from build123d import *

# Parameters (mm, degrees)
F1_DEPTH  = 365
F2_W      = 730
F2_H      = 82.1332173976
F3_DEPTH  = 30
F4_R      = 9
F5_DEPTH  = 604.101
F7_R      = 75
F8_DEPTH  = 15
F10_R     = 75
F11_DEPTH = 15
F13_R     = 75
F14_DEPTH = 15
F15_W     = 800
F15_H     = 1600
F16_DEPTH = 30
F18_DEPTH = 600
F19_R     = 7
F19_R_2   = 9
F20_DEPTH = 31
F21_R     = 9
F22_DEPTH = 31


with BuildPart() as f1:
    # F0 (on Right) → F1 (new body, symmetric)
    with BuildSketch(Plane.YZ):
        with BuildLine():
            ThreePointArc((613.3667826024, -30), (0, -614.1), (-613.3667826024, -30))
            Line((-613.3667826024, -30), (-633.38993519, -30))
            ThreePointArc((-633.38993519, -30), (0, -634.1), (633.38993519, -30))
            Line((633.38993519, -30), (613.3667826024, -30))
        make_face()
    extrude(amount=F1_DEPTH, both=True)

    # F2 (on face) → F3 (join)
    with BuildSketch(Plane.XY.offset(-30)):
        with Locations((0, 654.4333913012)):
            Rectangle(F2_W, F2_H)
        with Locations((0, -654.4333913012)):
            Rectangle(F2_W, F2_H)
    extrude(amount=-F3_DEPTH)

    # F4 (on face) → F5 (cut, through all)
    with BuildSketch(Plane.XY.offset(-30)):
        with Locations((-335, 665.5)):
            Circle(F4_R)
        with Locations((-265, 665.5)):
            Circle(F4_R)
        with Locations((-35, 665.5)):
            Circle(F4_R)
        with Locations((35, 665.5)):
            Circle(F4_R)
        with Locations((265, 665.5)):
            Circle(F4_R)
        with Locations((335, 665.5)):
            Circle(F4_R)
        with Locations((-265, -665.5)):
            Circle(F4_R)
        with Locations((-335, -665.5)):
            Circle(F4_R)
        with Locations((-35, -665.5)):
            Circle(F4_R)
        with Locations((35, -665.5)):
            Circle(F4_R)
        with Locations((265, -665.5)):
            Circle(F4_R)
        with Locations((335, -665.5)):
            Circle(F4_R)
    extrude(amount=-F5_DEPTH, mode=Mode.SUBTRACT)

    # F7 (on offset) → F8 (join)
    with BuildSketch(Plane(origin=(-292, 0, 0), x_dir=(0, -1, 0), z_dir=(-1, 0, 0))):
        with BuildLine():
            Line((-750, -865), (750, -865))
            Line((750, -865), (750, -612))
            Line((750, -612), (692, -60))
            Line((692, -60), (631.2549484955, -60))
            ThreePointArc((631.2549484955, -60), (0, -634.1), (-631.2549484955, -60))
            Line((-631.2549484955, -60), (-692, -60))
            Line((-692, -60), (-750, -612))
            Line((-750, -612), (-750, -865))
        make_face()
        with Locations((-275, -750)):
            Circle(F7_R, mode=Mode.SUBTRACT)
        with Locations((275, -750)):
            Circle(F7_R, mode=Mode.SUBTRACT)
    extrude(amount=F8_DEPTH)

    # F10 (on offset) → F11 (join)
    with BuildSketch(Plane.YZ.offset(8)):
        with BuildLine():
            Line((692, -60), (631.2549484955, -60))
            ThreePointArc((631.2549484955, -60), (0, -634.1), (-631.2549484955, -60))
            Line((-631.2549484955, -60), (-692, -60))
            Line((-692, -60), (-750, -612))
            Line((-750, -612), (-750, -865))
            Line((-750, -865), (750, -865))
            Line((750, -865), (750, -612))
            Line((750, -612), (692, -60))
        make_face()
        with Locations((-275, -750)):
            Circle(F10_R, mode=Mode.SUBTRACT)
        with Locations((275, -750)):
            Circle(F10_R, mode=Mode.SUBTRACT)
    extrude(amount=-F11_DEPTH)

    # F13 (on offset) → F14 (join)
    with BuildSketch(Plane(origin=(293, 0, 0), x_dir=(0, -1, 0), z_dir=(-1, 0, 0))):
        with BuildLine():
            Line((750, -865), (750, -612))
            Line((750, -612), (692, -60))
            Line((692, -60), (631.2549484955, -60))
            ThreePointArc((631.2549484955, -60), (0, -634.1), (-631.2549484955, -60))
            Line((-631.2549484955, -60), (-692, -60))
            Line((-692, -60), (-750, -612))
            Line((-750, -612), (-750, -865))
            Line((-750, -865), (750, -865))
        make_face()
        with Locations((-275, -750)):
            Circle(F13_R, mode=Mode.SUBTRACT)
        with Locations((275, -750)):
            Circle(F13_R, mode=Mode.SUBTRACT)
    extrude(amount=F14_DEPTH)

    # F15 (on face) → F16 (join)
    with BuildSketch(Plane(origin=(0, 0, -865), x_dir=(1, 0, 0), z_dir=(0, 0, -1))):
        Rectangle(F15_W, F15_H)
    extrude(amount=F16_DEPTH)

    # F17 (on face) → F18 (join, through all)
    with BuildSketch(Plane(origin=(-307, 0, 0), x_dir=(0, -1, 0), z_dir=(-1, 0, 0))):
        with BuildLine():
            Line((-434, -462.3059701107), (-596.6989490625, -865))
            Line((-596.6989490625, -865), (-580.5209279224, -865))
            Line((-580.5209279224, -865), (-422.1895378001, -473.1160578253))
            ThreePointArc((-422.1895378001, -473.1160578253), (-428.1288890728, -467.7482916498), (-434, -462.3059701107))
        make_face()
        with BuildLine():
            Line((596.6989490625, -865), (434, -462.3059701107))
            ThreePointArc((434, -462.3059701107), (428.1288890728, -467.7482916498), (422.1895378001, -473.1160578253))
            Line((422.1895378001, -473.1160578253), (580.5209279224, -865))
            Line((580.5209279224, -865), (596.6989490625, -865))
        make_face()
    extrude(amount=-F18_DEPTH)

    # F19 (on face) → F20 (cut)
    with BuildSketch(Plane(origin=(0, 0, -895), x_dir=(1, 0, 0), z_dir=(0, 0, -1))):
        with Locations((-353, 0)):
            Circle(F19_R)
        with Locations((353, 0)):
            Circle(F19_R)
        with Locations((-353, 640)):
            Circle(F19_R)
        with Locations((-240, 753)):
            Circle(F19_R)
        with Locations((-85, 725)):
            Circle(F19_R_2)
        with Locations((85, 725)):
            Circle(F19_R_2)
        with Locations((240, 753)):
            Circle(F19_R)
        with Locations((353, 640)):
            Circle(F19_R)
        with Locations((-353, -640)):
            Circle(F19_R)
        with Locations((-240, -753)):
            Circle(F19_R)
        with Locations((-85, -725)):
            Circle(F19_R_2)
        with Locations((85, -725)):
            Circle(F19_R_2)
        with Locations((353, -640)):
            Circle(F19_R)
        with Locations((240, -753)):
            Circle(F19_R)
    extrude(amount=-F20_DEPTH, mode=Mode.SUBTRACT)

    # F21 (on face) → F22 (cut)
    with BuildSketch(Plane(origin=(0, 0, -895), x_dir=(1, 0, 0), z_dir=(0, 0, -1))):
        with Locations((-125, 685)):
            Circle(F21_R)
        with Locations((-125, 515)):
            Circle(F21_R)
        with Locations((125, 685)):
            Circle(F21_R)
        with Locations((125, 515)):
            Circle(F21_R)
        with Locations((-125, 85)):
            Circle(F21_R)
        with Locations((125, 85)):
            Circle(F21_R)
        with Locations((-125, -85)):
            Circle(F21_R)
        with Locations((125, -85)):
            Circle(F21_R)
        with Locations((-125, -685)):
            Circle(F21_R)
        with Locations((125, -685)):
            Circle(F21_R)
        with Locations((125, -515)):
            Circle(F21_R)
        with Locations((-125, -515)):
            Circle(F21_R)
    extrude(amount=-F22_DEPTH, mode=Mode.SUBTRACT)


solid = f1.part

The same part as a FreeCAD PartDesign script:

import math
import FreeCAD as App
import Part
import Sketcher

V = App.Vector
Q = App.Units.Quantity

doc = App.newDocument("Part")
params = doc.addObject("Spreadsheet::Sheet", "Params")
for row, (alias, value) in enumerate([
    ("sketch1_radius", "614.1 mm"),
    ("sketch1_radius2", "634.1 mm"),
    ("pad1_length", "730 mm"),
    ("sketch2_width", "730 mm"),
    ("pad2_length", "30 mm"),
    ("sketch3_diameter", "18 mm"),
    ("sketch4_diameter", "150 mm"),
    ("sketch4_radius", "634.1 mm"),
    ("sketch4_width", "1500 mm"),
    ("sketch4_height", "253 mm"),
    ("pad3_length", "15 mm"),
    ("sketch5_diameter", "150 mm"),
    ("sketch5_radius", "634.1 mm"),
    ("sketch5_width", "1500 mm"),
    ("sketch5_height", "253 mm"),
    ("pad4_length", "15 mm"),
    ("sketch6_diameter", "150 mm"),
    ("sketch6_radius", "634.1 mm"),
    ("sketch6_width", "1500 mm"),
    ("sketch6_height", "253 mm"),
    ("pad5_length", "15 mm"),
    ("sketch7_width", "800 mm"),
    ("sketch7_height", "1600 mm"),
    ("pad6_length", "30 mm"),
    ("sketch8_radius", "634.1 mm"),
    ("sketch9_diameter", "14 mm"),
    ("sketch9_diameter2", "18 mm"),
    ("pocket2_length", "31 mm"),
    ("sketch10_diameter", "18 mm"),
    ("pocket3_length", "31 mm"),
], start=1):
    params.set(f"A{row}", alias)
    params.set(f"B{row}", "=" + value)
    params.setAlias(f"B{row}", alias)

body = doc.addObject("PartDesign::Body", "Body")

# Sketch on YZ plane
sketch1 = doc.addObject("Sketcher::SketchObject", "Sketch")
body.addObject(sketch1)
sketch1.AttachmentSupport = (doc.YZ_Plane, [""])
sketch1.MapMode = "FlatFace"
sketch1.addGeometry(Part.ArcOfCircle(Part.Circle(V(0, 0, 0), V(0, 0, 1), 614), math.radians(-177), math.radians(-3)), False)
sketch1.addGeometry(Part.LineSegment(V(-613, -30, 0), V(-633, -30, 0)), False)
sketch1.addGeometry(Part.ArcOfCircle(Part.Circle(V(0, 0, 0), V(0, 0, 1), 634), math.radians(-177), math.radians(-3)), False)
sketch1.addGeometry(Part.LineSegment(V(633, -30, 0), V(613, -30, 0)), False)
sketch1.addConstraint(Sketcher.Constraint("Coincident", 0, 1, 1, 1))
sketch1.addConstraint(Sketcher.Constraint("Coincident", 1, 2, 2, 1))
sketch1.addConstraint(Sketcher.Constraint("Coincident", 2, 2, 3, 1))
sketch1.addConstraint(Sketcher.Constraint("Coincident", 3, 2, 0, 2))
sketch1.addConstraint(Sketcher.Constraint("Horizontal", 1))
sketch1.addConstraint(Sketcher.Constraint("Horizontal", 3))
sketch1.addConstraint(Sketcher.Constraint("Coincident", 0, 3, -1, 1))
sketch1.addConstraint(Sketcher.Constraint("Coincident", 2, 3, -1, 1))
sketch1.addConstraint(Sketcher.Constraint("Radius", 0, Q("614.1 mm")))
sketch1.addConstraint(Sketcher.Constraint("Radius", 2, Q("634.1 mm")))
sketch1.addConstraint(Sketcher.Constraint("DistanceY", 1, 2, -1, 1, Q("30 mm")))
sketch1.addConstraint(Sketcher.Constraint("DistanceY", 3, 2, -1, 1, Q("30 mm")))
sketch1.setExpression("Constraints[8]", "Params.sketch1_radius")
sketch1.setExpression("Constraints[9]", "Params.sketch1_radius2")
pad1 = doc.addObject("PartDesign::Pad", "Pad")
body.addObject(pad1)
pad1.Profile = sketch1
pad1.setExpression("Length", "Params.pad1_length")
pad1.Midplane = True

# Sketch on XY plane
sketch2 = doc.addObject("Sketcher::SketchObject", "Sketch001")
body.addObject(sketch2)
sketch2.AttachmentSupport = (doc.XY_Plane, [""])
sketch2.MapMode = "FlatFace"
sketch2.AttachmentOffset = App.Placement(V(0, 0, -30), App.Rotation())
sketch2.addGeometry(Part.LineSegment(V(-365, 696, 0), V(-365, 613, 0)), False)
sketch2.addGeometry(Part.LineSegment(V(-365, 613, 0), V(365, 613, 0)), False)
sketch2.addGeometry(Part.LineSegment(V(365, 613, 0), V(365, 696, 0)), False)
sketch2.addGeometry(Part.LineSegment(V(365, 696, 0), V(-365, 696, 0)), False)
sketch2.addGeometry(Part.LineSegment(V(-365, -613, 0), V(-365, -696, 0)), False)
sketch2.addGeometry(Part.LineSegment(V(-365, -696, 0), V(365, -696, 0)), False)
sketch2.addGeometry(Part.LineSegment(V(365, -696, 0), V(365, -613, 0)), False)
sketch2.addGeometry(Part.LineSegment(V(365, -613, 0), V(-365, -613, 0)), False)
sketch2.addConstraint(Sketcher.Constraint("Coincident", 0, 2, 1, 1))
sketch2.addConstraint(Sketcher.Constraint("Coincident", 1, 2, 2, 1))
sketch2.addConstraint(Sketcher.Constraint("Coincident", 2, 2, 3, 1))
sketch2.addConstraint(Sketcher.Constraint("Coincident", 3, 2, 0, 1))
sketch2.addConstraint(Sketcher.Constraint("Coincident", 4, 2, 5, 1))
sketch2.addConstraint(Sketcher.Constraint("Coincident", 5, 2, 6, 1))
sketch2.addConstraint(Sketcher.Constraint("Coincident", 6, 2, 7, 1))
sketch2.addConstraint(Sketcher.Constraint("Coincident", 7, 2, 4, 1))
sketch2.addConstraint(Sketcher.Constraint("Vertical", 0))
sketch2.addConstraint(Sketcher.Constraint("Horizontal", 1))
sketch2.addConstraint(Sketcher.Constraint("Vertical", 2))
sketch2.addConstraint(Sketcher.Constraint("Horizontal", 3))
sketch2.addConstraint(Sketcher.Constraint("Vertical", 4))
sketch2.addConstraint(Sketcher.Constraint("Horizontal", 5))
sketch2.addConstraint(Sketcher.Constraint("Vertical", 6))
sketch2.addConstraint(Sketcher.Constraint("Horizontal", 7))
sketch2.addConstraint(Sketcher.Constraint("Symmetric", 2, 2, 4, 2, -1, 1))
sketch2.addConstraint(Sketcher.Constraint("Symmetric", 0, 2, 6, 2, -1, 1))
sketch2.addConstraint(Sketcher.Constraint("Vertical", 3, 2, 4, 2))
sketch2.addConstraint(Sketcher.Constraint("DistanceX", 1, 1, 1, 2, Q("730 mm")))
sketch2.addConstraint(Sketcher.Constraint("DistanceY", 4, 2, 3, 2, Q("1391 mm")))
sketch2.addConstraint(Sketcher.Constraint("DistanceY", 0, 2, 0, 1, Q("82.133217 mm")))
sketch2.setExpression("Constraints[19]", "Params.sketch2_width")
pad2 = doc.addObject("PartDesign::Pad", "Pad001")
body.addObject(pad2)
pad2.Profile = sketch2
pad2.setExpression("Length", "Params.pad2_length")
pad2.Reversed = True

# Sketch on XY plane
sketch3 = doc.addObject("Sketcher::SketchObject", "Sketch002")
body.addObject(sketch3)
sketch3.AttachmentSupport = (doc.XY_Plane, [""])
sketch3.MapMode = "FlatFace"
sketch3.AttachmentOffset = App.Placement(V(0, 0, -30), App.Rotation())
sketch3.addGeometry(Part.Circle(V(-335, 666, 0), V(0, 0, 1), 9), False)
sketch3.addGeometry(Part.Circle(V(-265, 666, 0), V(0, 0, 1), 9), False)
sketch3.addGeometry(Part.Circle(V(-35, 666, 0), V(0, 0, 1), 9), False)
sketch3.addGeometry(Part.Circle(V(35, 666, 0), V(0, 0, 1), 9), False)
sketch3.addGeometry(Part.Circle(V(265, 666, 0), V(0, 0, 1), 9), False)
sketch3.addGeometry(Part.Circle(V(335, 666, 0), V(0, 0, 1), 9), False)
sketch3.addGeometry(Part.Circle(V(-265, -666, 0), V(0, 0, 1), 9), False)
sketch3.addGeometry(Part.Circle(V(-335, -666, 0), V(0, 0, 1), 9), False)
sketch3.addGeometry(Part.Circle(V(-35, -666, 0), V(0, 0, 1), 9), False)
sketch3.addGeometry(Part.Circle(V(35, -666, 0), V(0, 0, 1), 9), False)
sketch3.addGeometry(Part.Circle(V(265, -666, 0), V(0, 0, 1), 9), False)
sketch3.addGeometry(Part.Circle(V(335, -666, 0), V(0, 0, 1), 9), False)
sketch3.addConstraint(Sketcher.Constraint("Equal", 0, 1))
sketch3.addConstraint(Sketcher.Constraint("Equal", 1, 2))
sketch3.addConstraint(Sketcher.Constraint("Equal", 2, 3))
sketch3.addConstraint(Sketcher.Constraint("Equal", 3, 4))
sketch3.addConstraint(Sketcher.Constraint("Equal", 4, 5))
sketch3.addConstraint(Sketcher.Constraint("Equal", 5, 6))
sketch3.addConstraint(Sketcher.Constraint("Equal", 6, 7))
sketch3.addConstraint(Sketcher.Constraint("Equal", 7, 8))
sketch3.addConstraint(Sketcher.Constraint("Equal", 8, 9))
sketch3.addConstraint(Sketcher.Constraint("Equal", 9, 10))
sketch3.addConstraint(Sketcher.Constraint("Equal", 10, 11))
sketch3.addConstraint(Sketcher.Constraint("Symmetric", 4, 3, 6, 3, -1, 1))
sketch3.addConstraint(Sketcher.Constraint("Symmetric", 5, 3, 7, 3, -1, 1))
sketch3.addConstraint(Sketcher.Constraint("Symmetric", 3, 3, 8, 3, -1, 1))
sketch3.addConstraint(Sketcher.Constraint("Symmetric", 2, 3, 9, 3, -1, 1))
sketch3.addConstraint(Sketcher.Constraint("Symmetric", 1, 3, 10, 3, -1, 1))
sketch3.addConstraint(Sketcher.Constraint("Symmetric", 0, 3, 11, 3, -1, 1))
sketch3.addConstraint(Sketcher.Constraint("Symmetric", 2, 3, 3, 3, -2))
sketch3.addConstraint(Sketcher.Constraint("Symmetric", 1, 3, 4, 3, -2))
sketch3.addConstraint(Sketcher.Constraint("Symmetric", 0, 3, 5, 3, -2))
sketch3.addConstraint(Sketcher.Constraint("Horizontal", 0, 3, 1, 3))
sketch3.addConstraint(Sketcher.Constraint("Horizontal", 1, 3, 2, 3))
sketch3.addConstraint(Sketcher.Constraint("Diameter", 0, Q("18 mm")))
sketch3.addConstraint(Sketcher.Constraint("DistanceX", 0, 3, -1, 1, Q("335 mm")))
sketch3.addConstraint(Sketcher.Constraint("DistanceX", 1, 3, -1, 1, Q("265 mm")))
sketch3.addConstraint(Sketcher.Constraint("DistanceX", 2, 3, -1, 1, Q("35 mm")))
sketch3.addConstraint(Sketcher.Constraint("DistanceY", 6, 3, 1, 3, Q("1331 mm")))
sketch3.setExpression("Constraints[22]", "Params.sketch3_diameter")
pocket1 = doc.addObject("PartDesign::Pocket", "Pocket")
body.addObject(pocket1)
pocket1.Profile = sketch3
pocket1.Type = "ThroughAll"

# Sketch on YZ plane
sketch4 = doc.addObject("Sketcher::SketchObject", "Sketch003")
body.addObject(sketch4)
sketch4.AttachmentSupport = (doc.YZ_Plane, [""])
sketch4.MapMode = "FlatFace"
sketch4.AttachmentOffset = App.Placement(V(0, 0, -292), App.Rotation())
sketch4.addGeometry(Part.LineSegment(V(750, -865, 0), V(-750, -865, 0)), False)
sketch4.addGeometry(Part.LineSegment(V(-750, -865, 0), V(-750, -612, 0)), False)
sketch4.addGeometry(Part.LineSegment(V(-750, -612, 0), V(-692, -60, 0)), False)
sketch4.addGeometry(Part.LineSegment(V(-692, -60, 0), V(-631, -60, 0)), False)
sketch4.addGeometry(Part.ArcOfCircle(Part.Circle(V(0, 0, 0), V(0, 0, 1), 634), math.radians(-175), math.radians(-5)), False)
sketch4.addGeometry(Part.LineSegment(V(631, -60, 0), V(692, -60, 0)), False)
sketch4.addGeometry(Part.LineSegment(V(692, -60, 0), V(750, -612, 0)), False)
sketch4.addGeometry(Part.LineSegment(V(750, -612, 0), V(750, -865, 0)), False)
sketch4.addGeometry(Part.Circle(V(275, -750, 0), V(0, 0, 1), 75), False)
sketch4.addGeometry(Part.Circle(V(-275, -750, 0), V(0, 0, 1), 75), False)
sketch4.addConstraint(Sketcher.Constraint("Coincident", 0, 2, 1, 1))
sketch4.addConstraint(Sketcher.Constraint("Coincident", 1, 2, 2, 1))
sketch4.addConstraint(Sketcher.Constraint("Coincident", 2, 2, 3, 1))
sketch4.addConstraint(Sketcher.Constraint("Coincident", 3, 2, 4, 1))
sketch4.addConstraint(Sketcher.Constraint("Coincident", 4, 2, 5, 1))
sketch4.addConstraint(Sketcher.Constraint("Coincident", 5, 2, 6, 1))
sketch4.addConstraint(Sketcher.Constraint("Coincident", 6, 2, 7, 1))
sketch4.addConstraint(Sketcher.Constraint("Coincident", 7, 2, 0, 1))
sketch4.addConstraint(Sketcher.Constraint("Horizontal", 0))
sketch4.addConstraint(Sketcher.Constraint("Vertical", 1))
sketch4.addConstraint(Sketcher.Constraint("Horizontal", 3))
sketch4.addConstraint(Sketcher.Constraint("Horizontal", 5))
sketch4.addConstraint(Sketcher.Constraint("Vertical", 7))
sketch4.addConstraint(Sketcher.Constraint("Coincident", 4, 3, -1, 1))
sketch4.addConstraint(Sketcher.Constraint("Equal", 8, 9))
sketch4.addConstraint(Sketcher.Constraint("Symmetric", 8, 3, 9, 3, -2))
sketch4.addConstraint(Sketcher.Constraint("Symmetric", 2, 2, 5, 2, -2))
sketch4.addConstraint(Sketcher.Constraint("Symmetric", 1, 2, 6, 2, -2))
sketch4.addConstraint(Sketcher.Constraint("Diameter", 8, Q("150 mm")))
sketch4.addConstraint(Sketcher.Constraint("Radius", 4, Q("634.1 mm")))
sketch4.addConstraint(Sketcher.Constraint("DistanceX", 0, 2, 0, 1, Q("1500 mm")))
sketch4.addConstraint(Sketcher.Constraint("DistanceY", 1, 1, 1, 2, Q("253 mm")))
sketch4.addConstraint(Sketcher.Constraint("DistanceX", -1, 1, 8, 3, Q("275 mm")))
sketch4.addConstraint(Sketcher.Constraint("DistanceY", 8, 3, -1, 1, Q("750 mm")))
sketch4.addConstraint(Sketcher.Constraint("DistanceY", 0, 2, -1, 1, Q("865 mm")))
sketch4.addConstraint(Sketcher.Constraint("DistanceX", 2, 2, -1, 1, Q("692 mm")))
sketch4.addConstraint(Sketcher.Constraint("DistanceY", 2, 2, -1, 1, Q("60 mm")))
sketch4.setExpression("Constraints[18]", "Params.sketch4_diameter")
sketch4.setExpression("Constraints[19]", "Params.sketch4_radius")
sketch4.setExpression("Constraints[20]", "Params.sketch4_width")
sketch4.setExpression("Constraints[21]", "Params.sketch4_height")
pad3 = doc.addObject("PartDesign::Pad", "Pad002")
body.addObject(pad3)
pad3.Profile = sketch4
pad3.setExpression("Length", "Params.pad3_length")
pad3.Reversed = True

# Sketch on YZ plane
sketch5 = doc.addObject("Sketcher::SketchObject", "Sketch004")
body.addObject(sketch5)
sketch5.AttachmentSupport = (doc.YZ_Plane, [""])
sketch5.MapMode = "FlatFace"
sketch5.AttachmentOffset = App.Placement(V(0, 0, 8), App.Rotation())
sketch5.addGeometry(Part.LineSegment(V(692, -60, 0), V(631, -60, 0)), False)
sketch5.addGeometry(Part.ArcOfCircle(Part.Circle(V(0, 0, 0), V(0, 0, 1), 634), math.radians(-175), math.radians(-5)), False)
sketch5.addGeometry(Part.LineSegment(V(-631, -60, 0), V(-692, -60, 0)), False)
sketch5.addGeometry(Part.LineSegment(V(-692, -60, 0), V(-750, -612, 0)), False)
sketch5.addGeometry(Part.LineSegment(V(-750, -612, 0), V(-750, -865, 0)), False)
sketch5.addGeometry(Part.LineSegment(V(-750, -865, 0), V(750, -865, 0)), False)
sketch5.addGeometry(Part.LineSegment(V(750, -865, 0), V(750, -612, 0)), False)
sketch5.addGeometry(Part.LineSegment(V(750, -612, 0), V(692, -60, 0)), False)
sketch5.addGeometry(Part.Circle(V(-275, -750, 0), V(0, 0, 1), 75), False)
sketch5.addGeometry(Part.Circle(V(275, -750, 0), V(0, 0, 1), 75), False)
sketch5.addConstraint(Sketcher.Constraint("Coincident", 0, 2, 1, 2))
sketch5.addConstraint(Sketcher.Constraint("Coincident", 1, 1, 2, 1))
sketch5.addConstraint(Sketcher.Constraint("Coincident", 2, 2, 3, 1))
sketch5.addConstraint(Sketcher.Constraint("Coincident", 3, 2, 4, 1))
sketch5.addConstraint(Sketcher.Constraint("Coincident", 4, 2, 5, 1))
sketch5.addConstraint(Sketcher.Constraint("Coincident", 5, 2, 6, 1))
sketch5.addConstraint(Sketcher.Constraint("Coincident", 6, 2, 7, 1))
sketch5.addConstraint(Sketcher.Constraint("Coincident", 7, 2, 0, 1))
sketch5.addConstraint(Sketcher.Constraint("Horizontal", 0))
sketch5.addConstraint(Sketcher.Constraint("Horizontal", 2))
sketch5.addConstraint(Sketcher.Constraint("Vertical", 4))
sketch5.addConstraint(Sketcher.Constraint("Horizontal", 5))
sketch5.addConstraint(Sketcher.Constraint("Vertical", 6))
sketch5.addConstraint(Sketcher.Constraint("Coincident", 1, 3, -1, 1))
sketch5.addConstraint(Sketcher.Constraint("Equal", 8, 9))
sketch5.addConstraint(Sketcher.Constraint("Symmetric", 8, 3, 9, 3, -2))
sketch5.addConstraint(Sketcher.Constraint("Symmetric", 3, 2, 6, 2, -2))
sketch5.addConstraint(Sketcher.Constraint("Symmetric", 2, 2, 7, 2, -2))
sketch5.addConstraint(Sketcher.Constraint("Diameter", 8, Q("150 mm")))
sketch5.addConstraint(Sketcher.Constraint("Radius", 1, Q("634.1 mm")))
sketch5.addConstraint(Sketcher.Constraint("DistanceX", 5, 1, 5, 2, Q("1500 mm")))
sketch5.addConstraint(Sketcher.Constraint("DistanceY", 4, 2, 4, 1, Q("253 mm")))
sketch5.addConstraint(Sketcher.Constraint("DistanceX", 8, 3, -1, 1, Q("275 mm")))
sketch5.addConstraint(Sketcher.Constraint("DistanceY", 8, 3, -1, 1, Q("750 mm")))
sketch5.addConstraint(Sketcher.Constraint("DistanceY", 0, 2, -1, 1, Q("60 mm")))
sketch5.addConstraint(Sketcher.Constraint("DistanceX", 2, 2, -1, 1, Q("692 mm")))
sketch5.addConstraint(Sketcher.Constraint("DistanceY", 3, 2, -1, 1, Q("612 mm")))
sketch5.setExpression("Constraints[18]", "Params.sketch5_diameter")
sketch5.setExpression("Constraints[19]", "Params.sketch5_radius")
sketch5.setExpression("Constraints[20]", "Params.sketch5_width")
sketch5.setExpression("Constraints[21]", "Params.sketch5_height")
pad4 = doc.addObject("PartDesign::Pad", "Pad003")
body.addObject(pad4)
pad4.Profile = sketch5
pad4.setExpression("Length", "Params.pad4_length")
pad4.Reversed = True

# Sketch on YZ plane
sketch6 = doc.addObject("Sketcher::SketchObject", "Sketch005")
body.addObject(sketch6)
sketch6.AttachmentSupport = (doc.YZ_Plane, [""])
sketch6.MapMode = "FlatFace"
sketch6.AttachmentOffset = App.Placement(V(0, 0, 293), App.Rotation())
sketch6.addGeometry(Part.LineSegment(V(-750, -865, 0), V(-750, -612, 0)), False)
sketch6.addGeometry(Part.LineSegment(V(-750, -612, 0), V(-692, -60, 0)), False)
sketch6.addGeometry(Part.LineSegment(V(-692, -60, 0), V(-631, -60, 0)), False)
sketch6.addGeometry(Part.ArcOfCircle(Part.Circle(V(0, 0, 0), V(0, 0, 1), 634), math.radians(-175), math.radians(-5)), False)
sketch6.addGeometry(Part.LineSegment(V(631, -60, 0), V(692, -60, 0)), False)
sketch6.addGeometry(Part.LineSegment(V(692, -60, 0), V(750, -612, 0)), False)
sketch6.addGeometry(Part.LineSegment(V(750, -612, 0), V(750, -865, 0)), False)
sketch6.addGeometry(Part.LineSegment(V(750, -865, 0), V(-750, -865, 0)), False)
sketch6.addGeometry(Part.Circle(V(275, -750, 0), V(0, 0, 1), 75), False)
sketch6.addGeometry(Part.Circle(V(-275, -750, 0), V(0, 0, 1), 75), False)
sketch6.addConstraint(Sketcher.Constraint("Coincident", 0, 2, 1, 1))
sketch6.addConstraint(Sketcher.Constraint("Coincident", 1, 2, 2, 1))
sketch6.addConstraint(Sketcher.Constraint("Coincident", 2, 2, 3, 1))
sketch6.addConstraint(Sketcher.Constraint("Coincident", 3, 2, 4, 1))
sketch6.addConstraint(Sketcher.Constraint("Coincident", 4, 2, 5, 1))
sketch6.addConstraint(Sketcher.Constraint("Coincident", 5, 2, 6, 1))
sketch6.addConstraint(Sketcher.Constraint("Coincident", 6, 2, 7, 1))
sketch6.addConstraint(Sketcher.Constraint("Coincident", 7, 2, 0, 1))
sketch6.addConstraint(Sketcher.Constraint("Vertical", 0))
sketch6.addConstraint(Sketcher.Constraint("Horizontal", 2))
sketch6.addConstraint(Sketcher.Constraint("Horizontal", 4))
sketch6.addConstraint(Sketcher.Constraint("Vertical", 6))
sketch6.addConstraint(Sketcher.Constraint("Horizontal", 7))
sketch6.addConstraint(Sketcher.Constraint("Coincident", 3, 3, -1, 1))
sketch6.addConstraint(Sketcher.Constraint("Equal", 8, 9))
sketch6.addConstraint(Sketcher.Constraint("Symmetric", 8, 3, 9, 3, -2))
sketch6.addConstraint(Sketcher.Constraint("Symmetric", 1, 2, 4, 2, -2))
sketch6.addConstraint(Sketcher.Constraint("Symmetric", 0, 2, 5, 2, -2))
sketch6.addConstraint(Sketcher.Constraint("Diameter", 8, Q("150 mm")))
sketch6.addConstraint(Sketcher.Constraint("Radius", 3, Q("634.1 mm")))
sketch6.addConstraint(Sketcher.Constraint("DistanceX", 7, 2, 7, 1, Q("1500 mm")))
sketch6.addConstraint(Sketcher.Constraint("DistanceY", 0, 1, 0, 2, Q("253 mm")))
sketch6.addConstraint(Sketcher.Constraint("DistanceX", -1, 1, 8, 3, Q("275 mm")))
sketch6.addConstraint(Sketcher.Constraint("DistanceY", 8, 3, -1, 1, Q("750 mm")))
sketch6.addConstraint(Sketcher.Constraint("DistanceY", 0, 2, -1, 1, Q("612 mm")))
sketch6.addConstraint(Sketcher.Constraint("DistanceX", 1, 2, -1, 1, Q("692 mm")))
sketch6.addConstraint(Sketcher.Constraint("DistanceY", 1, 2, -1, 1, Q("60 mm")))
sketch6.setExpression("Constraints[18]", "Params.sketch6_diameter")
sketch6.setExpression("Constraints[19]", "Params.sketch6_radius")
sketch6.setExpression("Constraints[20]", "Params.sketch6_width")
sketch6.setExpression("Constraints[21]", "Params.sketch6_height")
pad5 = doc.addObject("PartDesign::Pad", "Pad004")
body.addObject(pad5)
pad5.Profile = sketch6
pad5.setExpression("Length", "Params.pad5_length")
pad5.Reversed = True

# Sketch on XY plane
sketch7 = doc.addObject("Sketcher::SketchObject", "Sketch006")
body.addObject(sketch7)
sketch7.AttachmentSupport = (doc.XY_Plane, [""])
sketch7.MapMode = "FlatFace"
sketch7.AttachmentOffset = App.Placement(V(0, 0, -865), App.Rotation())
sketch7.addGeometry(Part.LineSegment(V(-400, -800, 0), V(-400, 800, 0)), False)
sketch7.addGeometry(Part.LineSegment(V(-400, 800, 0), V(400, 800, 0)), False)
sketch7.addGeometry(Part.LineSegment(V(400, 800, 0), V(400, -800, 0)), False)
sketch7.addGeometry(Part.LineSegment(V(400, -800, 0), V(-400, -800, 0)), False)
sketch7.addConstraint(Sketcher.Constraint("Coincident", 0, 2, 1, 1))
sketch7.addConstraint(Sketcher.Constraint("Coincident", 1, 2, 2, 1))
sketch7.addConstraint(Sketcher.Constraint("Coincident", 2, 2, 3, 1))
sketch7.addConstraint(Sketcher.Constraint("Coincident", 3, 2, 0, 1))
sketch7.addConstraint(Sketcher.Constraint("Vertical", 0))
sketch7.addConstraint(Sketcher.Constraint("Horizontal", 1))
sketch7.addConstraint(Sketcher.Constraint("Vertical", 2))
sketch7.addConstraint(Sketcher.Constraint("Horizontal", 3))
sketch7.addConstraint(Sketcher.Constraint("Symmetric", 0, 2, 2, 2, -1, 1))
sketch7.addConstraint(Sketcher.Constraint("DistanceX", 1, 1, 1, 2, Q("800 mm")))
sketch7.addConstraint(Sketcher.Constraint("DistanceY", 0, 1, 0, 2, Q("1600 mm")))
sketch7.setExpression("Constraints[9]", "Params.sketch7_width")
sketch7.setExpression("Constraints[10]", "Params.sketch7_height")
pad6 = doc.addObject("PartDesign::Pad", "Pad005")
body.addObject(pad6)
pad6.Profile = sketch7
pad6.setExpression("Length", "Params.pad6_length")
pad6.Reversed = True

# Sketch on YZ plane
sketch8 = doc.addObject("Sketcher::SketchObject", "Sketch007")
body.addObject(sketch8)
sketch8.AttachmentSupport = (doc.YZ_Plane, [""])
sketch8.MapMode = "FlatFace"
sketch8.AttachmentOffset = App.Placement(V(0, 0, -307), App.Rotation())
sketch8.addGeometry(Part.LineSegment(V(434, -462, 0), V(597, -865, 0)), False)
sketch8.addGeometry(Part.LineSegment(V(597, -865, 0), V(581, -865, 0)), False)
sketch8.addGeometry(Part.LineSegment(V(581, -865, 0), V(422, -473, 0)), False)
sketch8.addGeometry(Part.ArcOfCircle(Part.Circle(V(0, 0, 0), V(0, 0, 1), 634), math.radians(-48.26), math.radians(-46.81)), False)
sketch8.addGeometry(Part.LineSegment(V(-597, -865, 0), V(-434, -462, 0)), False)
sketch8.addGeometry(Part.ArcOfCircle(Part.Circle(V(0, 0, 0), V(0, 0, 1), 634), math.radians(-133.19), math.radians(-131.74)), False)
sketch8.addGeometry(Part.LineSegment(V(-422, -473, 0), V(-581, -865, 0)), False)
sketch8.addGeometry(Part.LineSegment(V(-581, -865, 0), V(-597, -865, 0)), False)
sketch8.addConstraint(Sketcher.Constraint("Coincident", 0, 2, 1, 1))
sketch8.addConstraint(Sketcher.Constraint("Coincident", 1, 2, 2, 1))
sketch8.addConstraint(Sketcher.Constraint("Coincident", 2, 2, 3, 1))
sketch8.addConstraint(Sketcher.Constraint("Coincident", 3, 2, 0, 1))
sketch8.addConstraint(Sketcher.Constraint("Coincident", 4, 2, 5, 1))
sketch8.addConstraint(Sketcher.Constraint("Coincident", 5, 2, 6, 1))
sketch8.addConstraint(Sketcher.Constraint("Coincident", 6, 2, 7, 1))
sketch8.addConstraint(Sketcher.Constraint("Coincident", 7, 2, 4, 1))
sketch8.addConstraint(Sketcher.Constraint("Horizontal", 1))
sketch8.addConstraint(Sketcher.Constraint("Horizontal", 7))
sketch8.addConstraint(Sketcher.Constraint("Coincident", 3, 3, -1, 1))
sketch8.addConstraint(Sketcher.Constraint("Coincident", 5, 3, -1, 1))
sketch8.addConstraint(Sketcher.Constraint("Equal", 3, 5))
sketch8.addConstraint(Sketcher.Constraint("Symmetric", 1, 2, 6, 2, -2))
sketch8.addConstraint(Sketcher.Constraint("Parallel", 0, 2))
sketch8.addConstraint(Sketcher.Constraint("Parallel", 4, 6))
sketch8.addConstraint(Sketcher.Constraint("Equal", 1, 7))
sketch8.addConstraint(Sketcher.Constraint("Equal", 0, 4))
sketch8.addConstraint(Sketcher.Constraint("Radius", 3, Q("634.1 mm")))
sketch8.addConstraint(Sketcher.Constraint("Angle", 0, Q("-68 deg")))
sketch8.addConstraint(Sketcher.Constraint("DistanceY", 0, 2, -1, 1, Q("865 mm")))
sketch8.addConstraint(Sketcher.Constraint("DistanceX", 4, 2, -1, 1, Q("434 mm")))
sketch8.addConstraint(Sketcher.Constraint("DistanceX", 1, 2, 1, 1, Q("16.178021 mm")))
sketch8.setExpression("Constraints[18]", "Params.sketch8_radius")
pad7 = doc.addObject("PartDesign::Pad", "Pad006")
body.addObject(pad7)
pad7.Profile = sketch8
pad7.Type = "UpToLast"

# Sketch on XY plane
sketch9 = doc.addObject("Sketcher::SketchObject", "Sketch008")
body.addObject(sketch9)
sketch9.AttachmentSupport = (doc.XY_Plane, [""])
sketch9.MapMode = "FlatFace"
sketch9.AttachmentOffset = App.Placement(V(0, 0, -895), App.Rotation())
sketch9.addGeometry(Part.Circle(V(-353, 0, 0), V(0, 0, 1), 7), False)
sketch9.addGeometry(Part.Circle(V(353, 0, 0), V(0, 0, 1), 7), False)
sketch9.addGeometry(Part.Circle(V(-353, -640, 0), V(0, 0, 1), 7), False)
sketch9.addGeometry(Part.Circle(V(-240, -753, 0), V(0, 0, 1), 7), False)
sketch9.addGeometry(Part.Circle(V(-85, -725, 0), V(0, 0, 1), 9), False)
sketch9.addGeometry(Part.Circle(V(85, -725, 0), V(0, 0, 1), 9), False)
sketch9.addGeometry(Part.Circle(V(240, -753, 0), V(0, 0, 1), 7), False)
sketch9.addGeometry(Part.Circle(V(353, -640, 0), V(0, 0, 1), 7), False)
sketch9.addGeometry(Part.Circle(V(-353, 640, 0), V(0, 0, 1), 7), False)
sketch9.addGeometry(Part.Circle(V(-240, 753, 0), V(0, 0, 1), 7), False)
sketch9.addGeometry(Part.Circle(V(-85, 725, 0), V(0, 0, 1), 9), False)
sketch9.addGeometry(Part.Circle(V(85, 725, 0), V(0, 0, 1), 9), False)
sketch9.addGeometry(Part.Circle(V(353, 640, 0), V(0, 0, 1), 7), False)
sketch9.addGeometry(Part.Circle(V(240, 753, 0), V(0, 0, 1), 7), False)
sketch9.addConstraint(Sketcher.Constraint("Equal", 0, 1))
sketch9.addConstraint(Sketcher.Constraint("Equal", 1, 2))
sketch9.addConstraint(Sketcher.Constraint("Equal", 2, 3))
sketch9.addConstraint(Sketcher.Constraint("Equal", 4, 5))
sketch9.addConstraint(Sketcher.Constraint("Equal", 3, 6))
sketch9.addConstraint(Sketcher.Constraint("Equal", 6, 7))
sketch9.addConstraint(Sketcher.Constraint("Equal", 7, 8))
sketch9.addConstraint(Sketcher.Constraint("Equal", 8, 9))
sketch9.addConstraint(Sketcher.Constraint("Equal", 5, 10))
sketch9.addConstraint(Sketcher.Constraint("Equal", 10, 11))
sketch9.addConstraint(Sketcher.Constraint("Equal", 9, 12))
sketch9.addConstraint(Sketcher.Constraint("Equal", 12, 13))
sketch9.addConstraint(Sketcher.Constraint("Symmetric", 0, 3, 1, 3, -1, 1))
sketch9.addConstraint(Sketcher.Constraint("Symmetric", 7, 3, 8, 3, -1, 1))
sketch9.addConstraint(Sketcher.Constraint("Symmetric", 6, 3, 9, 3, -1, 1))
sketch9.addConstraint(Sketcher.Constraint("Symmetric", 5, 3, 10, 3, -1, 1))
sketch9.addConstraint(Sketcher.Constraint("Symmetric", 4, 3, 11, 3, -1, 1))
sketch9.addConstraint(Sketcher.Constraint("Symmetric", 2, 3, 12, 3, -1, 1))
sketch9.addConstraint(Sketcher.Constraint("Symmetric", 3, 3, 13, 3, -1, 1))
sketch9.addConstraint(Sketcher.Constraint("Symmetric", 4, 3, 5, 3, -2))
sketch9.addConstraint(Sketcher.Constraint("Symmetric", 3, 3, 6, 3, -2))
sketch9.addConstraint(Sketcher.Constraint("Symmetric", 2, 3, 7, 3, -2))
sketch9.addConstraint(Sketcher.Constraint("PointOnObject", 0, 3, -1))
sketch9.addConstraint(Sketcher.Constraint("Vertical", 0, 3, 2, 3))
sketch9.addConstraint(Sketcher.Constraint("Diameter", 0, Q("14 mm")))
sketch9.addConstraint(Sketcher.Constraint("Diameter", 4, Q("18 mm")))
sketch9.addConstraint(Sketcher.Constraint("DistanceX", 0, 3, -1, 1, Q("353 mm")))
sketch9.addConstraint(Sketcher.Constraint("DistanceY", 2, 3, -1, 1, Q("640 mm")))
sketch9.addConstraint(Sketcher.Constraint("DistanceX", 3, 3, -1, 1, Q("240 mm")))
sketch9.addConstraint(Sketcher.Constraint("DistanceY", 3, 3, -1, 1, Q("753 mm")))
sketch9.addConstraint(Sketcher.Constraint("DistanceX", 4, 3, -1, 1, Q("85 mm")))
sketch9.addConstraint(Sketcher.Constraint("DistanceY", 4, 3, -1, 1, Q("725 mm")))
sketch9.setExpression("Constraints[24]", "Params.sketch9_diameter")
sketch9.setExpression("Constraints[25]", "Params.sketch9_diameter2")
pocket2 = doc.addObject("PartDesign::Pocket", "Pocket001")
body.addObject(pocket2)
pocket2.Profile = sketch9
pocket2.setExpression("Length", "Params.pocket2_length")
pocket2.Reversed = True

# Sketch on XY plane
sketch10 = doc.addObject("Sketcher::SketchObject", "Sketch009")
body.addObject(sketch10)
sketch10.AttachmentSupport = (doc.XY_Plane, [""])
sketch10.MapMode = "FlatFace"
sketch10.AttachmentOffset = App.Placement(V(0, 0, -895), App.Rotation())
sketch10.addGeometry(Part.Circle(V(-125, -685, 0), V(0, 0, 1), 9), False)
sketch10.addGeometry(Part.Circle(V(-125, -515, 0), V(0, 0, 1), 9), False)
sketch10.addGeometry(Part.Circle(V(125, -685, 0), V(0, 0, 1), 9), False)
sketch10.addGeometry(Part.Circle(V(125, -515, 0), V(0, 0, 1), 9), False)
sketch10.addGeometry(Part.Circle(V(-125, -85, 0), V(0, 0, 1), 9), False)
sketch10.addGeometry(Part.Circle(V(125, -85, 0), V(0, 0, 1), 9), False)
sketch10.addGeometry(Part.Circle(V(-125, 85, 0), V(0, 0, 1), 9), False)
sketch10.addGeometry(Part.Circle(V(125, 85, 0), V(0, 0, 1), 9), False)
sketch10.addGeometry(Part.Circle(V(-125, 685, 0), V(0, 0, 1), 9), False)
sketch10.addGeometry(Part.Circle(V(125, 685, 0), V(0, 0, 1), 9), False)
sketch10.addGeometry(Part.Circle(V(125, 515, 0), V(0, 0, 1), 9), False)
sketch10.addGeometry(Part.Circle(V(-125, 515, 0), V(0, 0, 1), 9), False)
sketch10.addConstraint(Sketcher.Constraint("Equal", 0, 1))
sketch10.addConstraint(Sketcher.Constraint("Equal", 1, 2))
sketch10.addConstraint(Sketcher.Constraint("Equal", 2, 3))
sketch10.addConstraint(Sketcher.Constraint("Equal", 3, 4))
sketch10.addConstraint(Sketcher.Constraint("Equal", 4, 5))
sketch10.addConstraint(Sketcher.Constraint("Equal", 5, 6))
sketch10.addConstraint(Sketcher.Constraint("Equal", 6, 7))
sketch10.addConstraint(Sketcher.Constraint("Equal", 7, 8))
sketch10.addConstraint(Sketcher.Constraint("Equal", 8, 9))
sketch10.addConstraint(Sketcher.Constraint("Equal", 9, 10))
sketch10.addConstraint(Sketcher.Constraint("Equal", 10, 11))
sketch10.addConstraint(Sketcher.Constraint("Symmetric", 5, 3, 6, 3, -1, 1))
sketch10.addConstraint(Sketcher.Constraint("Symmetric", 4, 3, 7, 3, -1, 1))
sketch10.addConstraint(Sketcher.Constraint("Symmetric", 2, 3, 8, 3, -1, 1))
sketch10.addConstraint(Sketcher.Constraint("Symmetric", 0, 3, 9, 3, -1, 1))
sketch10.addConstraint(Sketcher.Constraint("Symmetric", 1, 3, 10, 3, -1, 1))
sketch10.addConstraint(Sketcher.Constraint("Symmetric", 3, 3, 11, 3, -1, 1))
sketch10.addConstraint(Sketcher.Constraint("Symmetric", 0, 3, 2, 3, -2))
sketch10.addConstraint(Sketcher.Constraint("Symmetric", 1, 3, 3, 3, -2))
sketch10.addConstraint(Sketcher.Constraint("Symmetric", 4, 3, 5, 3, -2))
sketch10.addConstraint(Sketcher.Constraint("Vertical", 0, 3, 1, 3))
sketch10.addConstraint(Sketcher.Constraint("Vertical", 1, 3, 4, 3))
sketch10.addConstraint(Sketcher.Constraint("Diameter", 0, Q("18 mm")))
sketch10.addConstraint(Sketcher.Constraint("DistanceX", 0, 3, -1, 1, Q("125 mm")))
sketch10.addConstraint(Sketcher.Constraint("DistanceY", 0, 3, -1, 1, Q("685 mm")))
sketch10.addConstraint(Sketcher.Constraint("DistanceY", 1, 3, -1, 1, Q("515 mm")))
sketch10.addConstraint(Sketcher.Constraint("DistanceY", 4, 3, -1, 1, Q("85 mm")))
sketch10.setExpression("Constraints[22]", "Params.sketch10_diameter")
pocket3 = doc.addObject("PartDesign::Pocket", "Pocket002")
body.addObject(pocket3)
pocket3.Profile = sketch10
pocket3.setExpression("Length", "Params.pocket3_length")
pocket3.Reversed = True

doc.recompute()
